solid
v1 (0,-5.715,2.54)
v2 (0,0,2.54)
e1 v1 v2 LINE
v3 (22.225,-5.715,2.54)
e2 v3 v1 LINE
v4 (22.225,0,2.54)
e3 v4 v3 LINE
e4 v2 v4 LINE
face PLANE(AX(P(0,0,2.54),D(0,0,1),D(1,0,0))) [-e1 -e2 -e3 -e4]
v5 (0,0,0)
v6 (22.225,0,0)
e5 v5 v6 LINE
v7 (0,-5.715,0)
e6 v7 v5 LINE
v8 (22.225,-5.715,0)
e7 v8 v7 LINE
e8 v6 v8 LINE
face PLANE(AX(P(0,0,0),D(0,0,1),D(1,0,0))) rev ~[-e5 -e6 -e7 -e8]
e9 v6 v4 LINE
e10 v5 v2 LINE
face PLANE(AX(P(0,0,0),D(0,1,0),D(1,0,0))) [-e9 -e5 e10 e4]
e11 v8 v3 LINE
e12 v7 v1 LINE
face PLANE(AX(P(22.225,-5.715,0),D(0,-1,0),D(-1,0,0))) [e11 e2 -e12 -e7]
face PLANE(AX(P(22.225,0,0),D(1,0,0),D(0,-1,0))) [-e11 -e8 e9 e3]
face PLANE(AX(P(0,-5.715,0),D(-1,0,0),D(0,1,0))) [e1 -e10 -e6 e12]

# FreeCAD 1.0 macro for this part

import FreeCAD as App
import Part
import Sketcher

V = App.Vector
Q = App.Units.Quantity


def add_polygon(sketch, points):
    """Adds a closed chain of lines whose ends are joined by coincident constraints."""
    first, n = sketch.GeometryCount, len(points)
    for a, b in zip(points, points[1:] + points[:1]):
        sketch.addGeometry(Part.LineSegment(App.Vector(*a, 0), App.Vector(*b, 0)), False)
    for i in range(n):
        sketch.addConstraint(Sketcher.Constraint("Coincident", first + i, 2, first + (i + 1) % n, 1))

doc = App.newDocument("Part")
body = doc.addObject("PartDesign::Body", "Body")

# Sketch on XY plane
sketch1 = body.newObject("Sketcher::SketchObject", "Sketch")
sketch1.AttachmentSupport = (doc.getObject("XY_Plane"), [""])
sketch1.MapMode = "FlatFace"
add_polygon(sketch1, [(22, 0), (0, 0), (0, -6), (22, -6)])  # lines 0-3
sketch1.addConstraint([
    Sketcher.Constraint("Horizontal", 0),
    Sketcher.Constraint("Vertical", 1),
    Sketcher.Constraint("Horizontal", 2),
    Sketcher.Constraint("Vertical", 3),
    Sketcher.Constraint("Coincident", 0, 2, -1, 1),
    Sketcher.Constraint("DistanceX", 0, 2, 0, 1, Q("0.875 in")),
    Sketcher.Constraint("DistanceY", 1, 2, 1, 1, Q("0.225 in")),
])
pad1 = body.newObject("PartDesign::Pad", "Pad")
pad1.Profile = sketch1
pad1.Length = Q("0.1 in")

doc.recompute()
